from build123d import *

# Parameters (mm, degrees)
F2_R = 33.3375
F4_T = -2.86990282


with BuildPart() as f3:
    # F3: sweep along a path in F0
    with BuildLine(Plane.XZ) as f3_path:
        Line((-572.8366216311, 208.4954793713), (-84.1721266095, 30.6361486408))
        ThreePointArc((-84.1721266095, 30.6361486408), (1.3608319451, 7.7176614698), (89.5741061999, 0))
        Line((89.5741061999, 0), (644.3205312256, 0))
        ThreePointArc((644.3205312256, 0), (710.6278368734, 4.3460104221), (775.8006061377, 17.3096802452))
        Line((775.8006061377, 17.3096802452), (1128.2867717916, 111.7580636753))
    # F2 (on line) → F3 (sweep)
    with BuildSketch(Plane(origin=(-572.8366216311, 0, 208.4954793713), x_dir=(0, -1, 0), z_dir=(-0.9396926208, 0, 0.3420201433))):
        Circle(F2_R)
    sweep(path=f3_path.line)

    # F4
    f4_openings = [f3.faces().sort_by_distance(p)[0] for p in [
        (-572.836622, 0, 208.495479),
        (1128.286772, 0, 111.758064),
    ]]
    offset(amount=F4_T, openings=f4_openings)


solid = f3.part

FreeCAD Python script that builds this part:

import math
import FreeCAD as App
import Part
import Sketcher
Q = App.Units.Quantity


def faces_at(feature, points):
    """Names of the faces that lie closest to the given points."""
    faces = feature.Shape.Faces
    near = lambda p: min(range(len(faces)), key=lambda i: faces[i].distToShape(Part.Vertex(*p))[0])
    return sorted({f"Face{near(p) + 1}" for p in points})

doc = App.newDocument("Part")
body = doc.addObject("PartDesign::Body", "Body")

sketch1 = body.newObject("Sketcher::SketchObject", "Sketch")
sketch1.Placement = App.Placement(App.Vector(-572.836622, 0, 208.495479), App.Rotation(App.Vector(0, -1, 0), App.Vector(0.342020143, 0, 0.939692621), App.Vector(-0.939692621, 0, 0.342020143), "ZXY"))
sketch1.addGeometry(Part.Circle(App.Vector(0, 0, 0), App.Vector(0, 0, 1), 33), False)
sketch1.addConstraint([
    Sketcher.Constraint("Coincident", 0, 3, -1, 1),
    Sketcher.Constraint("Diameter", 0, Q("2.625 in")),
])

sketch2 = body.newObject("Sketcher::SketchObject", "Sketch001")
sketch2.AttachmentSupport = (doc.getObject("XZ_Plane"), [""])
sketch2.MapMode = "FlatFace"
sketch2.addGeometry([
    Part.LineSegment(App.Vector(-573, 208, 0), App.Vector(-84, 31, 0)),
    Part.ArcOfCircle(Part.Circle(App.Vector(90, 508, 0), App.Vector(0, 0, 1), 508), math.radians(-110), math.radians(-90)),
    Part.LineSegment(App.Vector(90, 0, 0), App.Vector(644, 0, 0)),
    Part.ArcOfCircle(Part.Circle(App.Vector(644, 508, 0), App.Vector(0, 0, 1), 508), math.radians(-90), math.radians(-75)),
    Part.LineSegment(App.Vector(776, 17, 0), App.Vector(1128, 112, 0)),
], False)
sketch2.addConstraint([
    Sketcher.Constraint("Tangent", 0, 2, 1, 1),
    Sketcher.Constraint("Tangent", 1, 2, 2, 1),
    Sketcher.Constraint("Tangent", 2, 2, 3, 1),
    Sketcher.Constraint("Tangent", 3, 2, 4, 1),
    Sketcher.Constraint("Horizontal", 2),
    Sketcher.Constraint("Equal", 1, 3),
    Sketcher.Constraint("PointOnObject", 1, 2, -1),
    Sketcher.Constraint("Radius", 1, Q("20 in")),
    Sketcher.Constraint("Angle", 0, Q("-20 deg")),
    Sketcher.Constraint("Angle", 4, Q("15 deg")),
    Sketcher.Constraint("Distance", 4, 364.920531),
    Sketcher.Constraint("DistanceX", 2, 1, 2, 2, 554.746425),
    Sketcher.Constraint("DistanceX", -1, 1, 3, 3, 644.320531),
    Sketcher.Constraint("DistanceX", 0, 1, -1, 1, 572.836622),
])
doc.recompute()

additivepipe = body.newObject("PartDesign::AdditivePipe", "AdditivePipe")
additivepipe.Profile = sketch1
additivepipe.Spine = (sketch2, ["Edge1", "Edge2", "Edge3", "Edge4", "Edge5"])
doc.recompute()

thickness = body.newObject("PartDesign::Thickness", "Thickness")
thickness.Base = (additivepipe, faces_at(additivepipe, [(-572.837, 0, 208.495), (1128.287, 0, 111.758)]))
thickness.Value = 2.869903
thickness.Reversed = True
thickness.Join = "Arc"

doc.recompute()
